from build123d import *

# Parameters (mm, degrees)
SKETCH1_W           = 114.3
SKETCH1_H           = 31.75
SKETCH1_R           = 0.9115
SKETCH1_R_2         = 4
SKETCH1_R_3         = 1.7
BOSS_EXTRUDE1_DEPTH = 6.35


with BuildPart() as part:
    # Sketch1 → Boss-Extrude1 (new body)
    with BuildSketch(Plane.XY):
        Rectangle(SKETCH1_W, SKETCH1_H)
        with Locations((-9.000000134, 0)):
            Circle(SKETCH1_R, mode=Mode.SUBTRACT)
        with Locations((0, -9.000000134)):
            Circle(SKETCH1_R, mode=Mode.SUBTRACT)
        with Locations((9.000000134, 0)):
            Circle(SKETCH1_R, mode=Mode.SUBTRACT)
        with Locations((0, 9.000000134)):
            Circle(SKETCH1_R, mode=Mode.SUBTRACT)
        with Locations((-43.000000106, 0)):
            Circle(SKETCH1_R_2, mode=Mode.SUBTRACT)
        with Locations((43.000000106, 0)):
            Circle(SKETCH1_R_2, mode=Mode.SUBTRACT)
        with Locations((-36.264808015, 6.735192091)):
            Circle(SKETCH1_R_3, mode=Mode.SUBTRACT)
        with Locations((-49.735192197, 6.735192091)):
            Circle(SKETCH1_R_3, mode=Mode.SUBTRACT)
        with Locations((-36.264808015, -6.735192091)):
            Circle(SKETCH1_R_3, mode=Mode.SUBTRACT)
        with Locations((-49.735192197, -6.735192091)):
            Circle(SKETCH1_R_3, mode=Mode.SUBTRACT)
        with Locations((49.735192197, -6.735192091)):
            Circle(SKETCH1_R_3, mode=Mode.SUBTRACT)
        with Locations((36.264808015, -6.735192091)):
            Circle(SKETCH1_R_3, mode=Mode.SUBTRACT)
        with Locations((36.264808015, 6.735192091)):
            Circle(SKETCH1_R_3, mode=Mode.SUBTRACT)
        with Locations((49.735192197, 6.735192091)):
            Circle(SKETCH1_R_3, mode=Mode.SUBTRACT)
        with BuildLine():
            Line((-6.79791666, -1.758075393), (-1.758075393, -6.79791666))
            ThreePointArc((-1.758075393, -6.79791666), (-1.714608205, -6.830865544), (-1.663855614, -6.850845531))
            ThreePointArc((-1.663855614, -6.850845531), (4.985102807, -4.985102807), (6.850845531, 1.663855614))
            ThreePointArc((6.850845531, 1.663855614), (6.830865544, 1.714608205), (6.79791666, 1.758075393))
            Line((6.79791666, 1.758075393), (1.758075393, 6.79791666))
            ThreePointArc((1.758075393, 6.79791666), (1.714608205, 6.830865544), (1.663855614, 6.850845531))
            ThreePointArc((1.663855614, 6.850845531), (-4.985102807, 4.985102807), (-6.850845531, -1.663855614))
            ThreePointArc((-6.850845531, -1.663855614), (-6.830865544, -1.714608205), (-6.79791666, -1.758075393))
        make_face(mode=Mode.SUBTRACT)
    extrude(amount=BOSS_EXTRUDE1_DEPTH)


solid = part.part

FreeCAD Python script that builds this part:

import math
import FreeCAD as App
import Part
import Sketcher
from FreeCAD import Vector
Q = App.Units.Quantity

doc = App.newDocument("Part")
body = doc.addObject("PartDesign::Body", "Body")

sketch1 = body.newObject("Sketcher::SketchObject", "Sketch")
sketch1.AttachmentSupport = (doc.getObject("XY_Plane"), [""])
sketch1.MapMode = "FlatFace"
sketch1.addGeometry(Part.LineSegment(Vector(-57.15, 15.88, 0), Vector(-57.15, -15.88, 0)), False)
sketch1.addGeometry(Part.LineSegment(Vector(-57.15, -15.88, 0), Vector(57.15, -15.88, 0)), False)
sketch1.addGeometry(Part.LineSegment(Vector(57.15, -15.88, 0), Vector(57.15, 15.88, 0)), False)
sketch1.addGeometry(Part.LineSegment(Vector(57.15, 15.88, 0), Vector(-57.15, 15.88, 0)), False)
sketch1.addGeometry(Part.Circle(Vector(-49.74, -6.74, 0), Vector(0, 0, 1), 1.7), False)
sketch1.addGeometry(Part.Circle(Vector(-36.26, -6.74, 0), Vector(0, 0, 1), 1.7), False)
sketch1.addGeometry(Part.Circle(Vector(0, -9, 0), Vector(0, 0, 1), 0.91), False)
sketch1.addGeometry(Part.Circle(Vector(36.26, -6.74, 0), Vector(0, 0, 1), 1.7), False)
sketch1.addGeometry(Part.Circle(Vector(49.74, -6.74, 0), Vector(0, 0, 1), 1.7), False)
sketch1.addGeometry(Part.Circle(Vector(-43, 0, 0), Vector(0, 0, 1), 4), False)
sketch1.addGeometry(Part.Circle(Vector(-9, 0, 0), Vector(0, 0, 1), 0.91), False)
sketch1.addGeometry(Part.LineSegment(Vector(-1.76, -6.8, 0), Vector(-6.8, -1.76, 0)), False)
sketch1.addGeometry(Part.ArcOfCircle(Part.Circle(Vector(-6.66, -1.62, 0), Vector(0, 0, 1), 0.2), math.radians(-166), math.radians(-135)), False)
sketch1.addGeometry(Part.ArcOfCircle(Part.Circle(Vector(0, 0, 0), Vector(0, 0, 1), 7.05), math.radians(76), math.radians(194)), False)
sketch1.addGeometry(Part.ArcOfCircle(Part.Circle(Vector(1.62, 6.66, 0), Vector(0, 0, 1), 0.2), math.radians(45), math.radians(76)), False)
sketch1.addGeometry(Part.LineSegment(Vector(1.76, 6.8, 0), Vector(6.8, 1.76, 0)), False)
sketch1.addGeometry(Part.ArcOfCircle(Part.Circle(Vector(6.66, 1.62, 0), Vector(0, 0, 1), 0.2), math.radians(14), math.radians(45)), False)
sketch1.addGeometry(Part.ArcOfCircle(Part.Circle(Vector(0, 0, 0), Vector(0, 0, 1), 7.05), math.radians(-104), math.radians(14)), False)
sketch1.addGeometry(Part.ArcOfCircle(Part.Circle(Vector(-1.62, -6.66, 0), Vector(0, 0, 1), 0.2), math.radians(-135), math.radians(-104)), False)
sketch1.addGeometry(Part.Circle(Vector(-49.74, 6.74, 0), Vector(0, 0, 1), 1.7), False)
sketch1.addGeometry(Part.Circle(Vector(-36.26, 6.74, 0), Vector(0, 0, 1), 1.7), False)
sketch1.addGeometry(Part.Circle(Vector(0, 9, 0), Vector(0, 0, 1), 0.91), False)
sketch1.addGeometry(Part.Circle(Vector(9, 0, 0), Vector(0, 0, 1), 0.91), False)
sketch1.addGeometry(Part.Circle(Vector(43, 0, 0), Vector(0, 0, 1), 4), False)
sketch1.addGeometry(Part.Circle(Vector(36.26, 6.74, 0), Vector(0, 0, 1), 1.7), False)
sketch1.addGeometry(Part.Circle(Vector(49.74, 6.74, 0), Vector(0, 0, 1), 1.7), False)
sketch1.addConstraint(Sketcher.Constraint("Coincident", 0, 2, 1, 1))
sketch1.addConstraint(Sketcher.Constraint("Coincident", 1, 2, 2, 1))
sketch1.addConstraint(Sketcher.Constraint("Coincident", 2, 2, 3, 1))
sketch1.addConstraint(Sketcher.Constraint("Coincident", 3, 2, 0, 1))
sketch1.addConstraint(Sketcher.Constraint("Tangent", 11, 2, 12, 2))
sketch1.addConstraint(Sketcher.Constraint("Tangent", 12, 1, 13, 2))
sketch1.addConstraint(Sketcher.Constraint("Tangent", 13, 1, 14, 2))
sketch1.addConstraint(Sketcher.Constraint("Tangent", 14, 1, 15, 1))
sketch1.addConstraint(Sketcher.Constraint("Tangent", 15, 2, 16, 2))
sketch1.addConstraint(Sketcher.Constraint("Tangent", 16, 1, 17, 2))
sketch1.addConstraint(Sketcher.Constraint("Tangent", 17, 1, 18, 2))
sketch1.addConstraint(Sketcher.Constraint("Tangent", 18, 1, 11, 1))
sketch1.addConstraint(Sketcher.Constraint("Vertical", 0))
sketch1.addConstraint(Sketcher.Constraint("Horizontal", 1))
sketch1.addConstraint(Sketcher.Constraint("Vertical", 2))
sketch1.addConstraint(Sketcher.Constraint("Horizontal", 3))
sketch1.addConstraint(Sketcher.Constraint("Coincident", 13, 3, -1, 1))
sketch1.addConstraint(Sketcher.Constraint("Coincident", 17, 3, -1, 1))
sketch1.addConstraint(Sketcher.Constraint("Equal", 4, 5))
sketch1.addConstraint(Sketcher.Constraint("Equal", 5, 7))
sketch1.addConstraint(Sketcher.Constraint("Equal", 7, 8))
sketch1.addConstraint(Sketcher.Constraint("Equal", 6, 10))
sketch1.addConstraint(Sketcher.Constraint("Equal", 12, 14))
sketch1.addConstraint(Sketcher.Constraint("Equal", 14, 16))
sketch1.addConstraint(Sketcher.Constraint("Equal", 13, 17))
sketch1.addConstraint(Sketcher.Constraint("Equal", 16, 18))
sketch1.addConstraint(Sketcher.Constraint("Equal", 8, 19))
sketch1.addConstraint(Sketcher.Constraint("Equal", 19, 20))
sketch1.addConstraint(Sketcher.Constraint("Equal", 10, 21))
sketch1.addConstraint(Sketcher.Constraint("Equal", 21, 22))
sketch1.addConstraint(Sketcher.Constraint("Equal", 9, 23))
sketch1.addConstraint(Sketcher.Constraint("Equal", 20, 24))
sketch1.addConstraint(Sketcher.Constraint("Equal", 24, 25))
sketch1.addConstraint(Sketcher.Constraint("Symmetric", 8, 3, 19, 3, -1, 1))
sketch1.addConstraint(Sketcher.Constraint("Symmetric", 7, 3, 20, 3, -1, 1))
sketch1.addConstraint(Sketcher.Constraint("Symmetric", 6, 3, 21, 3, -1, 1))
sketch1.addConstraint(Sketcher.Constraint("Symmetric", 10, 3, 22, 3, -1, 1))
sketch1.addConstraint(Sketcher.Constraint("Symmetric", 9, 3, 23, 3, -1, 1))
sketch1.addConstraint(Sketcher.Constraint("Symmetric", 5, 3, 24, 3, -1, 1))
sketch1.addConstraint(Sketcher.Constraint("Symmetric", 4, 3, 25, 3, -1, 1))
sketch1.addConstraint(Sketcher.Constraint("Symmetric", 0, 2, 2, 2, -1, 1))
sketch1.addConstraint(Sketcher.Constraint("Symmetric", 11, 2, 15, 2, -1, 1))
sketch1.addConstraint(Sketcher.Constraint("Symmetric", 5, 3, 7, 3, -2))
sketch1.addConstraint(Sketcher.Constraint("Symmetric", 4, 3, 8, 3, -2))
sketch1.addConstraint(Sketcher.Constraint("PointOnObject", 6, 3, -2))
sketch1.addConstraint(Sketcher.Constraint("PointOnObject", 9, 3, -1))
sketch1.addConstraint(Sketcher.Constraint("PointOnObject", 10, 3, -1))
sketch1.addConstraint(Sketcher.Constraint("Horizontal", 4, 3, 5, 3))
sketch1.addConstraint(Sketcher.Constraint("Diameter", 9, Q("8 mm")))
sketch1.addConstraint(Sketcher.Constraint("Diameter", 4, Q("3.4 mm")))
sketch1.addConstraint(Sketcher.Constraint("Radius", 12, Q("0.2 mm")))
sketch1.addConstraint(Sketcher.Constraint("Angle", 11, Q("135 deg")))
sketch1.addConstraint(Sketcher.Constraint("Radius", 13, Q("7.05 mm")))
sketch1.addConstraint(Sketcher.Constraint("Diameter", 6, Q("1.823 mm")))
sketch1.addConstraint(Sketcher.Constraint("DistanceX", 1, 1, 1, 2, Q("114.3 mm")))
sketch1.addConstraint(Sketcher.Constraint("DistanceY", 6, 3, -1, 1, Q("9 mm")))
sketch1.addConstraint(Sketcher.Constraint("DistanceX", 9, 3, -1, 1, Q("43 mm")))
sketch1.addConstraint(Sketcher.Constraint("DistanceX", 10, 3, -1, 1, Q("9 mm")))
sketch1.addConstraint(Sketcher.Constraint("DistanceX", 4, 3, 7, 3, Q("86 mm")))
sketch1.addConstraint(Sketcher.Constraint("DistanceY", 0, 2, 0, 1, Q("31.75 mm")))
sketch1.addConstraint(Sketcher.Constraint("DistanceY", 12, 1, 12, 3, Q("0.047202 mm")))
sketch1.addConstraint(Sketcher.Constraint("DistanceX", 5, 3, -1, 1, Q("36.264808 mm")))
sketch1.addConstraint(Sketcher.Constraint("DistanceY", 6, 3, 5, 3, Q("2.264808 mm")))
pad1 = body.newObject("PartDesign::Pad", "Pad")
pad1.Profile = sketch1
pad1.Length = 6.35

doc.recompute()
